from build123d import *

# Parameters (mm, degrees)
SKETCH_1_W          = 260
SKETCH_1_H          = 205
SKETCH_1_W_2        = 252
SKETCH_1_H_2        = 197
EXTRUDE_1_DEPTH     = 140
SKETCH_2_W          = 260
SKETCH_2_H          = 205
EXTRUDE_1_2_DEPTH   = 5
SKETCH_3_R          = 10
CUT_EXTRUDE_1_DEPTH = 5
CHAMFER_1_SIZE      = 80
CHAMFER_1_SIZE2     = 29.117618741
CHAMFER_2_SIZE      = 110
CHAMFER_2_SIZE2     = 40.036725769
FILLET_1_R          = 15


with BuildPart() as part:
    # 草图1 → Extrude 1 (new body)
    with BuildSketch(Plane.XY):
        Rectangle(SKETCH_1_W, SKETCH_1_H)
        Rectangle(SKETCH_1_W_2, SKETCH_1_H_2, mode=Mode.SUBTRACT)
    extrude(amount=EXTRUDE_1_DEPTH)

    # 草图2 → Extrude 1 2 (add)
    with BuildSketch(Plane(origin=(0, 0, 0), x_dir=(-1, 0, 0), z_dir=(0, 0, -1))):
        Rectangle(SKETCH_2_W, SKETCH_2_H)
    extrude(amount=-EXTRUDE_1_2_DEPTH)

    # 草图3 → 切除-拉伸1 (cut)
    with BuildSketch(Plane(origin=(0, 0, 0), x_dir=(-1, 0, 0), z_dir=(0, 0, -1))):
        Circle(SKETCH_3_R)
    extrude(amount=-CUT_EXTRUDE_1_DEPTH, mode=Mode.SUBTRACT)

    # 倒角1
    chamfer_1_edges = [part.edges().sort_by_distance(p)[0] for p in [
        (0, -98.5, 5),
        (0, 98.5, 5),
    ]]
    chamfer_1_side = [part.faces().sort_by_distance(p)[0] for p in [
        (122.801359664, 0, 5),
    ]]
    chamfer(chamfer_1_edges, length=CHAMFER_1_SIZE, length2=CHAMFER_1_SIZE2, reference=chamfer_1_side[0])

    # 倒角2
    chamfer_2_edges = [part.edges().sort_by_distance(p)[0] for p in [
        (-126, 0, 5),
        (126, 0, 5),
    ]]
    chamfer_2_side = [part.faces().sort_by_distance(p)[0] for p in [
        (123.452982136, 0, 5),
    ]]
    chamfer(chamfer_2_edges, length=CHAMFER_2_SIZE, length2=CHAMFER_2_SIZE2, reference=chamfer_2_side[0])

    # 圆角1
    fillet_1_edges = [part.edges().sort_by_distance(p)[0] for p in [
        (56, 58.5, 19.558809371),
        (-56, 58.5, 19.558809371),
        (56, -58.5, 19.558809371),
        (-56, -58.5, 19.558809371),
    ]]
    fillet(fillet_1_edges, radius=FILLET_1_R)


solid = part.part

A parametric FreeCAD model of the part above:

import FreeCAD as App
import Part
import Sketcher
from FreeCAD import Vector
Q = App.Units.Quantity


def edges_at(feature, points):
    """Names of the edges that pass closest to the given points."""
    edges = feature.Shape.Edges
    near = lambda p: min(range(len(edges)), key=lambda i: edges[i].distToShape(Part.Vertex(*p))[0])
    return sorted({f"Edge{near(p) + 1}" for p in points})

doc = App.newDocument("Part")
body = doc.addObject("PartDesign::Body", "Body")

sketch1 = body.newObject("Sketcher::SketchObject", "Sketch")
sketch1.AttachmentSupport = (doc.getObject("XY_Plane"), [""])
sketch1.MapMode = "FlatFace"
sketch1.addGeometry([
    Part.LineSegment(Vector(-130, 102, 0), Vector(-130, -102, 0)),
    Part.LineSegment(Vector(-130, -102, 0), Vector(130, -102, 0)),
    Part.LineSegment(Vector(130, -102, 0), Vector(130, 102, 0)),
    Part.LineSegment(Vector(130, 102, 0), Vector(-130, 102, 0)),
    Part.LineSegment(Vector(126, -98, 0), Vector(-126, -98, 0)),
    Part.LineSegment(Vector(-126, -98, 0), Vector(-126, 98, 0)),
    Part.LineSegment(Vector(-126, 98, 0), Vector(126, 98, 0)),
    Part.LineSegment(Vector(126, 98, 0), Vector(126, -98, 0)),
], False)
sketch1.addConstraint([
    Sketcher.Constraint("Coincident", 0, 2, 1, 1),
    Sketcher.Constraint("Coincident", 1, 2, 2, 1),
    Sketcher.Constraint("Coincident", 2, 2, 3, 1),
    Sketcher.Constraint("Coincident", 3, 2, 0, 1),
    Sketcher.Constraint("Coincident", 4, 2, 5, 1),
    Sketcher.Constraint("Coincident", 5, 2, 6, 1),
    Sketcher.Constraint("Coincident", 6, 2, 7, 1),
    Sketcher.Constraint("Coincident", 7, 2, 4, 1),
    Sketcher.Constraint("Vertical", 0),
    Sketcher.Constraint("Horizontal", 1),
    Sketcher.Constraint("Vertical", 2),
    Sketcher.Constraint("Horizontal", 3),
    Sketcher.Constraint("Horizontal", 4),
    Sketcher.Constraint("Vertical", 5),
    Sketcher.Constraint("Horizontal", 6),
    Sketcher.Constraint("Vertical", 7),
    Sketcher.Constraint("Symmetric", 0, 2, 2, 2, -1, 1),
    Sketcher.Constraint("Symmetric", 4, 2, 6, 2, -1, 1),
    Sketcher.Constraint("DistanceX", 1, 1, 1, 2, Q("260 mm")),
    Sketcher.Constraint("DistanceX", 4, 2, 4, 1, Q("252 mm")),
    Sketcher.Constraint("DistanceY", 0, 2, 0, 1, Q("205 mm")),
    Sketcher.Constraint("DistanceY", 5, 1, 5, 2, Q("197 mm")),
])
pad1 = body.newObject("PartDesign::Pad", "Pad")
pad1.Profile = sketch1
pad1.Length = 140

sketch2 = body.newObject("Sketcher::SketchObject", "Sketch001")
sketch2.AttachmentSupport = (doc.getObject("XY_Plane"), [""])
sketch2.MapMode = "FlatFace"
sketch2.addGeometry([
    Part.LineSegment(Vector(130, 102, 0), Vector(130, -102, 0)),
    Part.LineSegment(Vector(130, -102, 0), Vector(-130, -102, 0)),
    Part.LineSegment(Vector(-130, -102, 0), Vector(-130, 102, 0)),
    Part.LineSegment(Vector(-130, 102, 0), Vector(130, 102, 0)),
], False)
sketch2.addConstraint([
    Sketcher.Constraint("Coincident", 0, 2, 1, 1),
    Sketcher.Constraint("Coincident", 1, 2, 2, 1),
    Sketcher.Constraint("Coincident", 2, 2, 3, 1),
    Sketcher.Constraint("Coincident", 3, 2, 0, 1),
    Sketcher.Constraint("Vertical", 0),
    Sketcher.Constraint("Horizontal", 1),
    Sketcher.Constraint("Vertical", 2),
    Sketcher.Constraint("Horizontal", 3),
    Sketcher.Constraint("Symmetric", 0, 2, 2, 2, -1, 1),
    Sketcher.Constraint("DistanceX", 1, 2, 1, 1, Q("260 mm")),
    Sketcher.Constraint("DistanceY", 0, 2, 0, 1, Q("205 mm")),
])
pad2 = body.newObject("PartDesign::Pad", "Pad001")
pad2.Profile = sketch2
pad2.Length = 5

sketch3 = body.newObject("Sketcher::SketchObject", "Sketch002")
sketch3.AttachmentSupport = (doc.getObject("XY_Plane"), [""])
sketch3.MapMode = "FlatFace"
sketch3.addGeometry(Part.Circle(Vector(0, 0, 0), Vector(0, 0, 1), 10), False)
sketch3.addConstraint([
    Sketcher.Constraint("Coincident", 0, 3, -1, 1),
    Sketcher.Constraint("Diameter", 0, Q("20 mm")),
])
pocket1 = body.newObject("PartDesign::Pocket", "Pocket")
pocket1.Profile = sketch3
pocket1.Length = 5
pocket1.Reversed = True
doc.recompute()

chamfer = body.newObject("PartDesign::Chamfer", "Chamfer")
chamfer.Base = (pocket1, edges_at(pocket1, [(0, -98.5, 5), (0, 98.5, 5)]))
chamfer.ChamferType = "Two distances"
chamfer.Size = 80
chamfer.Size2 = 29.117619
chamfer.FlipDirection = True
doc.recompute()

chamfer2 = body.newObject("PartDesign::Chamfer", "Chamfer001")
chamfer2.Base = (chamfer, edges_at(chamfer, [(-126, 0, 5), (126, 0, 5)]))
chamfer2.ChamferType = "Two distances"
chamfer2.Size = 110
chamfer2.Size2 = 40.036726
chamfer2.FlipDirection = True
doc.recompute()

fillet = body.newObject("PartDesign::Fillet", "Fillet")
fillet.Base = (chamfer2, edges_at(chamfer2, [
    (56, 58.5, 19.559),
    (-56, 58.5, 19.559),
    (56, -58.5, 19.559),
    (-56, -58.5, 19.559),
]))
fillet.Radius = 15

doc.recompute()
